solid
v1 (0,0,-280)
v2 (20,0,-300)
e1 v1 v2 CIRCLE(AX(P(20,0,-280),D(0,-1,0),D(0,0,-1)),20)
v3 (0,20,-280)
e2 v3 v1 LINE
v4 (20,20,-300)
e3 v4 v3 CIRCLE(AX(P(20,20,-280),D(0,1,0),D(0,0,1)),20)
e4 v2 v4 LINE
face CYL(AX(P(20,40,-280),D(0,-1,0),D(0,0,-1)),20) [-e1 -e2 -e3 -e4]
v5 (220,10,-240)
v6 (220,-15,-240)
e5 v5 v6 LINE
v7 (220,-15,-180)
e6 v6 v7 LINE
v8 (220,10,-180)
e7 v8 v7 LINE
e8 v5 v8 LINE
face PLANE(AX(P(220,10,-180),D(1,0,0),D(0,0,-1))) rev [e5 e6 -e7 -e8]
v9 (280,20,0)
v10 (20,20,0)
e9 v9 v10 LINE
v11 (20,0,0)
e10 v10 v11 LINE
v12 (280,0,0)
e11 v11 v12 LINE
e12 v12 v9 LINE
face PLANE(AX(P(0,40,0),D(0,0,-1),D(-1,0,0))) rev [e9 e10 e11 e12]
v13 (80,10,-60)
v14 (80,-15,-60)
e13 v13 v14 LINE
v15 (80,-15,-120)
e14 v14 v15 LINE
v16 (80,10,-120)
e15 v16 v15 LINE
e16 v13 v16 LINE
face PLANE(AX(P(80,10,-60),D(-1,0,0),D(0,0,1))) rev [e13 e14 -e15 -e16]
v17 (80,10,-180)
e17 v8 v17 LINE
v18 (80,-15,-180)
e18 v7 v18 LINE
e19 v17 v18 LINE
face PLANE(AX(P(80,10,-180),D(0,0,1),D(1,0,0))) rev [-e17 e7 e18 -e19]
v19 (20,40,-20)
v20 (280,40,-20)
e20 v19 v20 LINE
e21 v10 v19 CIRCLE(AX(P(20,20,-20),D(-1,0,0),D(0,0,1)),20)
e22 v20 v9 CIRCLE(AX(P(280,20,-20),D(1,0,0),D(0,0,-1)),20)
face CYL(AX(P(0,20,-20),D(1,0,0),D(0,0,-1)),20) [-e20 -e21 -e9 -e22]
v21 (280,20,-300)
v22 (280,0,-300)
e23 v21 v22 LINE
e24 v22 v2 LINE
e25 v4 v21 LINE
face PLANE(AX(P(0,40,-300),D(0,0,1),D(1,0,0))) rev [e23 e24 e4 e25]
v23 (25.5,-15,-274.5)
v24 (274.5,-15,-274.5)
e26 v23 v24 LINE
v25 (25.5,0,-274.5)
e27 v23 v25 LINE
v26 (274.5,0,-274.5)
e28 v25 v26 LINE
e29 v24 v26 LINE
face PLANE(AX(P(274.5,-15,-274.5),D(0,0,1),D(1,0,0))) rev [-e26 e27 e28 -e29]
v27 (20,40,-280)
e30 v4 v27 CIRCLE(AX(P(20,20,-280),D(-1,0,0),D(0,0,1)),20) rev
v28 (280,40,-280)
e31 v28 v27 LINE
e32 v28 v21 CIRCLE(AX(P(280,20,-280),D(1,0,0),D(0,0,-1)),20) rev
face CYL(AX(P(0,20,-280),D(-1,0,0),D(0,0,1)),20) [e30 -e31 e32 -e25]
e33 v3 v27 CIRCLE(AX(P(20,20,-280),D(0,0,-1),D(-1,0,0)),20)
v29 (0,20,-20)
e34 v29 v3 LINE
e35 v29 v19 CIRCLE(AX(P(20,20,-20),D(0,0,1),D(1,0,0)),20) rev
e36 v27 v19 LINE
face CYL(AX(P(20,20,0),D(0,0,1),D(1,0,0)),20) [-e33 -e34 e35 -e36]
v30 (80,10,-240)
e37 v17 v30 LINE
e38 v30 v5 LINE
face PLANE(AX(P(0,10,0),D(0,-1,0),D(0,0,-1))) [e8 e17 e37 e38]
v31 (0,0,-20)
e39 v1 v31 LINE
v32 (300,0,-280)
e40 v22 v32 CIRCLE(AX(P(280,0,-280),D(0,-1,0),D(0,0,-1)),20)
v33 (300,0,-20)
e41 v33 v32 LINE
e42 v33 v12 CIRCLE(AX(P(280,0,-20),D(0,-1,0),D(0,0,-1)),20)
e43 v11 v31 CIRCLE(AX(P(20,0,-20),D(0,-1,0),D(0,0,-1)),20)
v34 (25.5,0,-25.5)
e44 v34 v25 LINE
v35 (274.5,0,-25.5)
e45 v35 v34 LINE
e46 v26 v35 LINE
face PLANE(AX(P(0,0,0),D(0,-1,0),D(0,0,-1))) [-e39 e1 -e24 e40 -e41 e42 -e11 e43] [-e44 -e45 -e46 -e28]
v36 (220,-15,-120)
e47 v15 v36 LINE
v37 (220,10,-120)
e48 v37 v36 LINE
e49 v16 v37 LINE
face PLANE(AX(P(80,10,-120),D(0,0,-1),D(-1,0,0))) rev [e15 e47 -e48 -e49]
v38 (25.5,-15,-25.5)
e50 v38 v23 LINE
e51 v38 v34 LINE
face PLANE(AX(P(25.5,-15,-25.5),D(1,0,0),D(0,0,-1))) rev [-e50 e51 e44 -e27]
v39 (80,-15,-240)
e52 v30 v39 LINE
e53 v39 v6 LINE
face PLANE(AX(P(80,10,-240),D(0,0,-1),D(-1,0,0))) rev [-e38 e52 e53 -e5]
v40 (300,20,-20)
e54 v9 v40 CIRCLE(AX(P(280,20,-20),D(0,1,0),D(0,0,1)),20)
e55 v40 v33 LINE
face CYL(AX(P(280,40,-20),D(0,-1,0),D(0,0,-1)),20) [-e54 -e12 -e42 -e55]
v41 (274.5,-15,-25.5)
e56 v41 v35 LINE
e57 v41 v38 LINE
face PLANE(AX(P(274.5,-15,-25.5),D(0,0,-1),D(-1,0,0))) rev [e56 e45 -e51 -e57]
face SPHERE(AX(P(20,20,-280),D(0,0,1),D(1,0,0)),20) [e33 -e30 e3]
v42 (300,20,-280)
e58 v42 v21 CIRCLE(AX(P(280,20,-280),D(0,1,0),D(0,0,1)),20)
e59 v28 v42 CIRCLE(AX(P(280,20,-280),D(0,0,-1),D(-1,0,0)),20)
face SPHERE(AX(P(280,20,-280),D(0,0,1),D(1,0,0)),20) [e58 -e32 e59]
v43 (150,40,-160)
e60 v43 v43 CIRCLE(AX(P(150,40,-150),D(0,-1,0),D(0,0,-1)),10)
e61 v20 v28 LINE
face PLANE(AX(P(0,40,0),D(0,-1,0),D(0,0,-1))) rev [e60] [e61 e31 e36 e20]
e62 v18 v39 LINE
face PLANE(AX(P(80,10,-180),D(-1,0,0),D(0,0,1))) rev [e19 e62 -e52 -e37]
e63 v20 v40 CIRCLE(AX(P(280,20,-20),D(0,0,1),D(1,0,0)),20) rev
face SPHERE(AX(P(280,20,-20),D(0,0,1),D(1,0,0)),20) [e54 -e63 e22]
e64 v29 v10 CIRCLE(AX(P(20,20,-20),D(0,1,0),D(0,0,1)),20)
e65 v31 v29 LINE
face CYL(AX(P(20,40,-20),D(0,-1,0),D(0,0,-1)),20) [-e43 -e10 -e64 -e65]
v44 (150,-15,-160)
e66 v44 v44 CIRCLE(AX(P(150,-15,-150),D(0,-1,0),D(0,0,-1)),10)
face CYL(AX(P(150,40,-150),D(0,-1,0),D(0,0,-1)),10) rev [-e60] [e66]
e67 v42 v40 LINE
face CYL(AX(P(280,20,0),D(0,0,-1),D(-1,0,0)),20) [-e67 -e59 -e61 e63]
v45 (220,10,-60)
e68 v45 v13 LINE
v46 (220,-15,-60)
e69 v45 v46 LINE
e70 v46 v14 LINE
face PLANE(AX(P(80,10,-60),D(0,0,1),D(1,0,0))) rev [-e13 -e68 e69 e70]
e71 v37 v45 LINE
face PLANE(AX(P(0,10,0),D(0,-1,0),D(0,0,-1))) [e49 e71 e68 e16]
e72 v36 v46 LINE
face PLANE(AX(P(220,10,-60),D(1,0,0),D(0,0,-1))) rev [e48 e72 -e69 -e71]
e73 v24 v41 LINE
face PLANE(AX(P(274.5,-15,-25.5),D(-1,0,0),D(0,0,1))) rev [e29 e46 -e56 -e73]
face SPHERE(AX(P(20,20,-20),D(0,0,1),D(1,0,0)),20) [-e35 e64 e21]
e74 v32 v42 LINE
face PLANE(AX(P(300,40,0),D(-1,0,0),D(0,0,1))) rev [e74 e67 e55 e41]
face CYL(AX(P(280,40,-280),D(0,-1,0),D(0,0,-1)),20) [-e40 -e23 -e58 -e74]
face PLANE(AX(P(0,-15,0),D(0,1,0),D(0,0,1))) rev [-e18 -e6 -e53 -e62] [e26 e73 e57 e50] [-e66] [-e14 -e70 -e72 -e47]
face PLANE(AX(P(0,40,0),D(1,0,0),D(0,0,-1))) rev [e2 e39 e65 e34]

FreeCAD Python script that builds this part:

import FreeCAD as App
import Part
import Sketcher


def edges_at(feature, points):
    """Names of the edges that pass closest to the given points."""
    edges = feature.Shape.Edges
    near = lambda p: min(range(len(edges)), key=lambda i: edges[i].distToShape(Part.Vertex(*p))[0])
    return sorted({f"Edge{near(p) + 1}" for p in points})

doc = App.newDocument("Part")
body = doc.addObject("PartDesign::Body", "Body")

# Sketch on XZ plane
sketch1 = body.newObject("Sketcher::SketchObject", "Sketch")
sketch1.AttachmentSupport = (doc.getObject("XZ_Plane"), [""])
sketch1.MapMode = "FlatFace"
sketch1.addGeometry([
    Part.LineSegment(App.Vector(0, -300, 0), App.Vector(0, 0, 0)),
    Part.LineSegment(App.Vector(0, 0, 0), App.Vector(300, 0, 0)),
    Part.LineSegment(App.Vector(300, 0, 0), App.Vector(300, -300, 0)),
    Part.LineSegment(App.Vector(300, -300, 0), App.Vector(0, -300, 0)),
], False)
sketch1.addConstraint([
    Sketcher.Constraint("Coincident", 0, 2, 1, 1),
    Sketcher.Constraint("Coincident", 1, 2, 2, 1),
    Sketcher.Constraint("Coincident", 2, 2, 3, 1),
    Sketcher.Constraint("Coincident", 3, 2, 0, 1),
    Sketcher.Constraint("Vertical", 0),
    Sketcher.Constraint("Horizontal", 1),
    Sketcher.Constraint("Vertical", 2),
    Sketcher.Constraint("Horizontal", 3),
    Sketcher.Constraint("Coincident", 0, 2, -1, 1),
    Sketcher.Constraint("Equal", 3, 0),
    Sketcher.Constraint("DistanceX", 1, 1, 1, 2, 300.0),
])
pad1 = body.newObject("PartDesign::Pad", "Pad")
pad1.Profile = sketch1
pad1.Length = 40
pad1.Reversed = True
doc.recompute()

fillet = body.newObject("PartDesign::Fillet", "Fillet")
fillet.Base = (pad1, edges_at(pad1, [
    (300, 40, -150),
    (150, 40, -300),
    (0, 40, -150),
    (150, 40, 0),
    (0, 20, -300),
    (300, 20, -300),
    (300, 20, 0),
    (0, 20, 0),
]))
fillet.Radius = 20

# Sketch on XZ plane
sketch2 = body.newObject("Sketcher::SketchObject", "Sketch001")
sketch2.AttachmentSupport = (doc.getObject("XZ_Plane"), [""])
sketch2.MapMode = "FlatFace"
sketch2.addGeometry([
    Part.LineSegment(App.Vector(26, -26, 0), App.Vector(26, -274, 0)),
    Part.LineSegment(App.Vector(26, -274, 0), App.Vector(274, -274, 0)),
    Part.LineSegment(App.Vector(274, -274, 0), App.Vector(274, -26, 0)),
    Part.LineSegment(App.Vector(274, -26, 0), App.Vector(26, -26, 0)),
], False)
sketch2.addConstraint([
    Sketcher.Constraint("Coincident", 0, 2, 1, 1),
    Sketcher.Constraint("Coincident", 1, 2, 2, 1),
    Sketcher.Constraint("Coincident", 2, 2, 3, 1),
    Sketcher.Constraint("Coincident", 3, 2, 0, 1),
    Sketcher.Constraint("Vertical", 0),
    Sketcher.Constraint("Horizontal", 1),
    Sketcher.Constraint("Vertical", 2),
    Sketcher.Constraint("Horizontal", 3),
    Sketcher.Constraint("Equal", 3, 0),
    Sketcher.Constraint("DistanceX", 1, 1, 1, 2, 249.0),
    Sketcher.Constraint("DistanceX", -1, 1, 0, 2, 25.5),
    Sketcher.Constraint("DistanceY", 0, 2, -1, 1, 274.5),
])
pad2 = body.newObject("PartDesign::Pad", "Pad001")
pad2.Profile = sketch2
pad2.Length = 15

# Sketch on XZ plane
sketch3 = body.newObject("Sketcher::SketchObject", "Sketch002")
sketch3.AttachmentSupport = (doc.getObject("XZ_Plane"), [""])
sketch3.MapMode = "FlatFace"
sketch3.AttachmentOffset = App.Placement(App.Vector(0, 0, 15), App.Rotation())
sketch3.addGeometry([
    Part.LineSegment(App.Vector(80, -60, 0), App.Vector(80, -120, 0)),  # 0
    Part.LineSegment(App.Vector(80, -120, 0), App.Vector(220, -120, 0)),  # 1
    Part.LineSegment(App.Vector(220, -120, 0), App.Vector(220, -60, 0)),  # 2
    Part.LineSegment(App.Vector(220, -60, 0), App.Vector(80, -60, 0)),  # 3
    Part.LineSegment(App.Vector(80, -180, 0), App.Vector(80, -240, 0)),  # 4
    Part.LineSegment(App.Vector(80, -240, 0), App.Vector(220, -240, 0)),  # 5
    Part.LineSegment(App.Vector(220, -240, 0), App.Vector(220, -180, 0)),  # 6
    Part.LineSegment(App.Vector(220, -180, 0), App.Vector(80, -180, 0)),  # 7
], False)
sketch3.addConstraint([
    Sketcher.Constraint("Coincident", 0, 2, 1, 1),
    Sketcher.Constraint("Coincident", 1, 2, 2, 1),
    Sketcher.Constraint("Coincident", 2, 2, 3, 1),
    Sketcher.Constraint("Coincident", 3, 2, 0, 1),
    Sketcher.Constraint("Coincident", 4, 2, 5, 1),
    Sketcher.Constraint("Coincident", 5, 2, 6, 1),
    Sketcher.Constraint("Coincident", 6, 2, 7, 1),
    Sketcher.Constraint("Coincident", 7, 2, 4, 1),
    Sketcher.Constraint("Vertical", 0),
    Sketcher.Constraint("Horizontal", 1),
    Sketcher.Constraint("Vertical", 2),
    Sketcher.Constraint("Horizontal", 3),
    Sketcher.Constraint("Vertical", 4),
    Sketcher.Constraint("Horizontal", 5),
    Sketcher.Constraint("Vertical", 6),
    Sketcher.Constraint("Horizontal", 7),
    Sketcher.Constraint("Vertical", 3, 2, 4, 2),
    Sketcher.Constraint("Vertical", 2, 2, 5, 2),
    Sketcher.Constraint("Equal", 2, 4),
    Sketcher.Constraint("DistanceX", 1, 1, 1, 2, 140.0),
    Sketcher.Constraint("DistanceY", 0, 2, 0, 1, 60.0),
    Sketcher.Constraint("DistanceX", -1, 1, 0, 2, 80.0),
    Sketcher.Constraint("DistanceY", 0, 2, -1, 1, 120.0),
    Sketcher.Constraint("DistanceY", 4, 2, -1, 1, 240.0),
])
pocket1 = body.newObject("PartDesign::Pocket", "Pocket")
pocket1.Profile = sketch3
pocket1.Length = 25

# Sketch on XZ plane
sketch4 = body.newObject("Sketcher::SketchObject", "Sketch003")
sketch4.AttachmentSupport = (doc.getObject("XZ_Plane"), [""])
sketch4.MapMode = "FlatFace"
sketch4.AttachmentOffset = App.Placement(App.Vector(0, 0, 15), App.Rotation())
sketch4.addGeometry(Part.Circle(App.Vector(150, -150, 0), App.Vector(0, 0, 1), 10), False)
sketch4.addConstraint([
    Sketcher.Constraint("Diameter", 0, 20.0),
    Sketcher.Constraint("DistanceX", -1, 1, 0, 3, 150.0),
    Sketcher.Constraint("DistanceY", 0, 3, -1, 1, 150.0),
])
pocket2 = body.newObject("PartDesign::Pocket", "Pocket001")
pocket2.Profile = sketch4
pocket2.Type = "ThroughAll"

doc.recompute()
